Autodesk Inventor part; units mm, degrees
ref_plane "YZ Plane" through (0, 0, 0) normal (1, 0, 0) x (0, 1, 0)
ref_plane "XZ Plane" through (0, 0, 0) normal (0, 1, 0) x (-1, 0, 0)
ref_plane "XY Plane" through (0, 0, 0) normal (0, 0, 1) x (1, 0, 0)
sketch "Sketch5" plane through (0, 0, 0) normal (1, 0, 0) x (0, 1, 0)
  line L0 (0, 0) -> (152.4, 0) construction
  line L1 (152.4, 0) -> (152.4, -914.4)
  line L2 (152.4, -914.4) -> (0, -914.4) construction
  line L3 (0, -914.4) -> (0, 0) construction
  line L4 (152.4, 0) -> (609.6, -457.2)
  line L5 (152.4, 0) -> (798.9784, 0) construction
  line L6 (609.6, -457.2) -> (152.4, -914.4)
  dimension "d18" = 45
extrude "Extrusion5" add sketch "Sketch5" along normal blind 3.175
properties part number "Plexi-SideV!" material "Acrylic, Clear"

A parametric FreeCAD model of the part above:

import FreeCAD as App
import Part
import Sketcher

V = App.Vector
Q = App.Units.Quantity


def add_polygon(sketch, points):
    """Adds a closed chain of lines whose ends are joined by coincident constraints."""
    first, n = sketch.GeometryCount, len(points)
    for a, b in zip(points, points[1:] + points[:1]):
        sketch.addGeometry(Part.LineSegment(App.Vector(*a, 0), App.Vector(*b, 0)), False)
    for i in range(n):
        sketch.addConstraint(Sketcher.Constraint("Coincident", first + i, 2, first + (i + 1) % n, 1))

doc = App.newDocument("Part")
body = doc.addObject("PartDesign::Body", "Body")

sketch1 = body.newObject("Sketcher::SketchObject", "Sketch")
sketch1.AttachmentSupport = (doc.getObject("YZ_Plane"), [""])
sketch1.MapMode = "FlatFace"
add_polygon(sketch1, [(610, -457), (152, 0), (152, -914)])
sketch1.addConstraint(Sketcher.Constraint("Vertical", 1))
sketch1.addConstraint(Sketcher.Constraint("PointOnObject", 0, 2, -1))
sketch1.addConstraint(Sketcher.Constraint("Perpendicular", 0, 2))
sketch1.addConstraint(Sketcher.Constraint("Equal", 0, 2))
sketch1.addConstraint(Sketcher.Constraint("DistanceY", 1, 2, 1, 1, Q("36 in")))
sketch1.addConstraint(Sketcher.Constraint("DistanceX", -1, 1, 0, 2, Q("6 in")))
pad1 = body.newObject("PartDesign::Pad", "Pad")
pad1.Profile = sketch1
pad1.Length = Q("0.125 in")

doc.recompute()
